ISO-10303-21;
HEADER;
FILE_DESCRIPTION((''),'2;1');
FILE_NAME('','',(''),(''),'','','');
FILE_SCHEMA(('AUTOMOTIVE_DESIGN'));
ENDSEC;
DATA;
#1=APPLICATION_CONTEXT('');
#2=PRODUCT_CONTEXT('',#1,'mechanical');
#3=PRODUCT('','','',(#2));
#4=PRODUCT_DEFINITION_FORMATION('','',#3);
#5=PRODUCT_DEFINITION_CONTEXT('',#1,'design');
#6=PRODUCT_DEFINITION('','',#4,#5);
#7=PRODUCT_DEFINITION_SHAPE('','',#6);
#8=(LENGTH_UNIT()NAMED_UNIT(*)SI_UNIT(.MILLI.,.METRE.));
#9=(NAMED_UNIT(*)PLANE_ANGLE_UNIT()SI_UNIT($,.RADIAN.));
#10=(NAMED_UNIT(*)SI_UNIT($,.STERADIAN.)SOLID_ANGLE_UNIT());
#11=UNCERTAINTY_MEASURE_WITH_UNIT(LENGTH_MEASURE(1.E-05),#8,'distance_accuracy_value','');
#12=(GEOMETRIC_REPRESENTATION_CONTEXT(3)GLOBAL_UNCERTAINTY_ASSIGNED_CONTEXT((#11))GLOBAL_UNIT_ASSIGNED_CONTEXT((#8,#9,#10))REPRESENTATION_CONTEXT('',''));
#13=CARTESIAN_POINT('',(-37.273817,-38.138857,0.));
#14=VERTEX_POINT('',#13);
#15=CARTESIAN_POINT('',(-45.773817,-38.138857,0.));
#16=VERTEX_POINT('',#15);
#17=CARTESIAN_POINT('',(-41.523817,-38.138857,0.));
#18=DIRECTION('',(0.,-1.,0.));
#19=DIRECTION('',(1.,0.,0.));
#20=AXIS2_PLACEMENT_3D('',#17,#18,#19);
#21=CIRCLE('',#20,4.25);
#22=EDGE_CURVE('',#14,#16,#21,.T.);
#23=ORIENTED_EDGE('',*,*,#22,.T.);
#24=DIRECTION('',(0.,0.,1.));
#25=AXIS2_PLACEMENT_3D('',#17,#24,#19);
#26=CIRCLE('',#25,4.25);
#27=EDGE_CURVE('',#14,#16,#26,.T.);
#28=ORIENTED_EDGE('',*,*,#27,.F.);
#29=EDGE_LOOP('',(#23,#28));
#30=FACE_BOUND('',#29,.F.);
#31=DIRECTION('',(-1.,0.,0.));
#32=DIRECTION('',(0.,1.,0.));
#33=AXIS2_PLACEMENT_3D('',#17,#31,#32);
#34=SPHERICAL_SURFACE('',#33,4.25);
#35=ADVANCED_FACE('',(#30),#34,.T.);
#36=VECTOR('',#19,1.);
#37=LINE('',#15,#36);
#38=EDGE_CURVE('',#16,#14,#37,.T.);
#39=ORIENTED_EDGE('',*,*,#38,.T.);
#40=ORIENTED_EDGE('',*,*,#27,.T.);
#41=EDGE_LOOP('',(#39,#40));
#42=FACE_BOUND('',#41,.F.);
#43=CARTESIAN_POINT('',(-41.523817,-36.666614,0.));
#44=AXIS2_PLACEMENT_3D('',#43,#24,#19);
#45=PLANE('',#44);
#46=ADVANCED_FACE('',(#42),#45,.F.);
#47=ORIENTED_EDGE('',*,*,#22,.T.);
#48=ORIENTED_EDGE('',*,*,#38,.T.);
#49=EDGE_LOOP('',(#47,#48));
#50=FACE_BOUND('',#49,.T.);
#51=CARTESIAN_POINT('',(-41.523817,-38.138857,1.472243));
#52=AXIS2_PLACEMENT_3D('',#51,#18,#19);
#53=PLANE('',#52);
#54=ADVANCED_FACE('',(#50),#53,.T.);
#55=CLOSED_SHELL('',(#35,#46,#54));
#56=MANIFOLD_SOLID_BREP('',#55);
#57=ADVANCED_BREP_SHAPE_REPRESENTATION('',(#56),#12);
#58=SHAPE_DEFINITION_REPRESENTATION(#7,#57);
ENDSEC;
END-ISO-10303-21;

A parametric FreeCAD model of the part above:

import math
import FreeCAD as App
import Part
import Sketcher

doc = App.newDocument("Part")
params = doc.addObject("Spreadsheet::Sheet", "Params")
for row, (alias, value) in enumerate([
    ("sketch1_radius", "4.25 mm"),
    ("revolution_angle", "90 deg"),
], start=1):
    params.set(f"A{row}", alias)
    params.set(f"B{row}", "=" + value)
    params.setAlias(f"B{row}", alias)

body = doc.addObject("PartDesign::Body", "Body")

sketch1 = body.newObject("Sketcher::SketchObject", "Sketch")
sketch1.AttachmentSupport = (doc.getObject("XY_Plane"), [""])
sketch1.MapMode = "FlatFace"
sketch1.addGeometry([
    Part.ArcOfCircle(Part.Circle(App.Vector(-41.523817, -38.138857, 0), App.Vector(0, 0, 1), 4.25), math.radians(0), math.radians(180)),
    Part.LineSegment(App.Vector(-45.773817, -38.138857, 0), App.Vector(-37.273817, -38.138857, 0)),
], False)
sketch1.addGeometry(Part.LineSegment(App.Vector(-45.773817, -38.138857, 0), App.Vector(-37.273817, -38.138857, 0)), True)
sketch1.addConstraint([
    Sketcher.Constraint("Coincident", 0, 1, 1, 2),
    Sketcher.Constraint("Coincident", 1, 1, 0, 2),
    Sketcher.Constraint("Horizontal", 1),
    Sketcher.Constraint("Horizontal", 2),
    Sketcher.Constraint("Coincident", 2, 1, 1, 1),
    Sketcher.Constraint("Equal", 1, 2),
    Sketcher.Constraint("Radius", 0, 4.25),
    Sketcher.Constraint("DistanceX", 0, 3, -1, 1, 41.523817),
    Sketcher.Constraint("DistanceY", 0, 3, -1, 1, 38.138857),
    Sketcher.Constraint("DistanceY", 0, 1, -1, 1, 38.138857),
])
sketch1.setExpression("Constraints[6]", "Params.sketch1_radius")
revolution = body.newObject("PartDesign::Revolution", "Revolution")
revolution.Profile = sketch1
revolution.ReferenceAxis = (sketch1, ["Axis0"])
revolution.setExpression("Angle", "Params.revolution_angle")

doc.recompute()
